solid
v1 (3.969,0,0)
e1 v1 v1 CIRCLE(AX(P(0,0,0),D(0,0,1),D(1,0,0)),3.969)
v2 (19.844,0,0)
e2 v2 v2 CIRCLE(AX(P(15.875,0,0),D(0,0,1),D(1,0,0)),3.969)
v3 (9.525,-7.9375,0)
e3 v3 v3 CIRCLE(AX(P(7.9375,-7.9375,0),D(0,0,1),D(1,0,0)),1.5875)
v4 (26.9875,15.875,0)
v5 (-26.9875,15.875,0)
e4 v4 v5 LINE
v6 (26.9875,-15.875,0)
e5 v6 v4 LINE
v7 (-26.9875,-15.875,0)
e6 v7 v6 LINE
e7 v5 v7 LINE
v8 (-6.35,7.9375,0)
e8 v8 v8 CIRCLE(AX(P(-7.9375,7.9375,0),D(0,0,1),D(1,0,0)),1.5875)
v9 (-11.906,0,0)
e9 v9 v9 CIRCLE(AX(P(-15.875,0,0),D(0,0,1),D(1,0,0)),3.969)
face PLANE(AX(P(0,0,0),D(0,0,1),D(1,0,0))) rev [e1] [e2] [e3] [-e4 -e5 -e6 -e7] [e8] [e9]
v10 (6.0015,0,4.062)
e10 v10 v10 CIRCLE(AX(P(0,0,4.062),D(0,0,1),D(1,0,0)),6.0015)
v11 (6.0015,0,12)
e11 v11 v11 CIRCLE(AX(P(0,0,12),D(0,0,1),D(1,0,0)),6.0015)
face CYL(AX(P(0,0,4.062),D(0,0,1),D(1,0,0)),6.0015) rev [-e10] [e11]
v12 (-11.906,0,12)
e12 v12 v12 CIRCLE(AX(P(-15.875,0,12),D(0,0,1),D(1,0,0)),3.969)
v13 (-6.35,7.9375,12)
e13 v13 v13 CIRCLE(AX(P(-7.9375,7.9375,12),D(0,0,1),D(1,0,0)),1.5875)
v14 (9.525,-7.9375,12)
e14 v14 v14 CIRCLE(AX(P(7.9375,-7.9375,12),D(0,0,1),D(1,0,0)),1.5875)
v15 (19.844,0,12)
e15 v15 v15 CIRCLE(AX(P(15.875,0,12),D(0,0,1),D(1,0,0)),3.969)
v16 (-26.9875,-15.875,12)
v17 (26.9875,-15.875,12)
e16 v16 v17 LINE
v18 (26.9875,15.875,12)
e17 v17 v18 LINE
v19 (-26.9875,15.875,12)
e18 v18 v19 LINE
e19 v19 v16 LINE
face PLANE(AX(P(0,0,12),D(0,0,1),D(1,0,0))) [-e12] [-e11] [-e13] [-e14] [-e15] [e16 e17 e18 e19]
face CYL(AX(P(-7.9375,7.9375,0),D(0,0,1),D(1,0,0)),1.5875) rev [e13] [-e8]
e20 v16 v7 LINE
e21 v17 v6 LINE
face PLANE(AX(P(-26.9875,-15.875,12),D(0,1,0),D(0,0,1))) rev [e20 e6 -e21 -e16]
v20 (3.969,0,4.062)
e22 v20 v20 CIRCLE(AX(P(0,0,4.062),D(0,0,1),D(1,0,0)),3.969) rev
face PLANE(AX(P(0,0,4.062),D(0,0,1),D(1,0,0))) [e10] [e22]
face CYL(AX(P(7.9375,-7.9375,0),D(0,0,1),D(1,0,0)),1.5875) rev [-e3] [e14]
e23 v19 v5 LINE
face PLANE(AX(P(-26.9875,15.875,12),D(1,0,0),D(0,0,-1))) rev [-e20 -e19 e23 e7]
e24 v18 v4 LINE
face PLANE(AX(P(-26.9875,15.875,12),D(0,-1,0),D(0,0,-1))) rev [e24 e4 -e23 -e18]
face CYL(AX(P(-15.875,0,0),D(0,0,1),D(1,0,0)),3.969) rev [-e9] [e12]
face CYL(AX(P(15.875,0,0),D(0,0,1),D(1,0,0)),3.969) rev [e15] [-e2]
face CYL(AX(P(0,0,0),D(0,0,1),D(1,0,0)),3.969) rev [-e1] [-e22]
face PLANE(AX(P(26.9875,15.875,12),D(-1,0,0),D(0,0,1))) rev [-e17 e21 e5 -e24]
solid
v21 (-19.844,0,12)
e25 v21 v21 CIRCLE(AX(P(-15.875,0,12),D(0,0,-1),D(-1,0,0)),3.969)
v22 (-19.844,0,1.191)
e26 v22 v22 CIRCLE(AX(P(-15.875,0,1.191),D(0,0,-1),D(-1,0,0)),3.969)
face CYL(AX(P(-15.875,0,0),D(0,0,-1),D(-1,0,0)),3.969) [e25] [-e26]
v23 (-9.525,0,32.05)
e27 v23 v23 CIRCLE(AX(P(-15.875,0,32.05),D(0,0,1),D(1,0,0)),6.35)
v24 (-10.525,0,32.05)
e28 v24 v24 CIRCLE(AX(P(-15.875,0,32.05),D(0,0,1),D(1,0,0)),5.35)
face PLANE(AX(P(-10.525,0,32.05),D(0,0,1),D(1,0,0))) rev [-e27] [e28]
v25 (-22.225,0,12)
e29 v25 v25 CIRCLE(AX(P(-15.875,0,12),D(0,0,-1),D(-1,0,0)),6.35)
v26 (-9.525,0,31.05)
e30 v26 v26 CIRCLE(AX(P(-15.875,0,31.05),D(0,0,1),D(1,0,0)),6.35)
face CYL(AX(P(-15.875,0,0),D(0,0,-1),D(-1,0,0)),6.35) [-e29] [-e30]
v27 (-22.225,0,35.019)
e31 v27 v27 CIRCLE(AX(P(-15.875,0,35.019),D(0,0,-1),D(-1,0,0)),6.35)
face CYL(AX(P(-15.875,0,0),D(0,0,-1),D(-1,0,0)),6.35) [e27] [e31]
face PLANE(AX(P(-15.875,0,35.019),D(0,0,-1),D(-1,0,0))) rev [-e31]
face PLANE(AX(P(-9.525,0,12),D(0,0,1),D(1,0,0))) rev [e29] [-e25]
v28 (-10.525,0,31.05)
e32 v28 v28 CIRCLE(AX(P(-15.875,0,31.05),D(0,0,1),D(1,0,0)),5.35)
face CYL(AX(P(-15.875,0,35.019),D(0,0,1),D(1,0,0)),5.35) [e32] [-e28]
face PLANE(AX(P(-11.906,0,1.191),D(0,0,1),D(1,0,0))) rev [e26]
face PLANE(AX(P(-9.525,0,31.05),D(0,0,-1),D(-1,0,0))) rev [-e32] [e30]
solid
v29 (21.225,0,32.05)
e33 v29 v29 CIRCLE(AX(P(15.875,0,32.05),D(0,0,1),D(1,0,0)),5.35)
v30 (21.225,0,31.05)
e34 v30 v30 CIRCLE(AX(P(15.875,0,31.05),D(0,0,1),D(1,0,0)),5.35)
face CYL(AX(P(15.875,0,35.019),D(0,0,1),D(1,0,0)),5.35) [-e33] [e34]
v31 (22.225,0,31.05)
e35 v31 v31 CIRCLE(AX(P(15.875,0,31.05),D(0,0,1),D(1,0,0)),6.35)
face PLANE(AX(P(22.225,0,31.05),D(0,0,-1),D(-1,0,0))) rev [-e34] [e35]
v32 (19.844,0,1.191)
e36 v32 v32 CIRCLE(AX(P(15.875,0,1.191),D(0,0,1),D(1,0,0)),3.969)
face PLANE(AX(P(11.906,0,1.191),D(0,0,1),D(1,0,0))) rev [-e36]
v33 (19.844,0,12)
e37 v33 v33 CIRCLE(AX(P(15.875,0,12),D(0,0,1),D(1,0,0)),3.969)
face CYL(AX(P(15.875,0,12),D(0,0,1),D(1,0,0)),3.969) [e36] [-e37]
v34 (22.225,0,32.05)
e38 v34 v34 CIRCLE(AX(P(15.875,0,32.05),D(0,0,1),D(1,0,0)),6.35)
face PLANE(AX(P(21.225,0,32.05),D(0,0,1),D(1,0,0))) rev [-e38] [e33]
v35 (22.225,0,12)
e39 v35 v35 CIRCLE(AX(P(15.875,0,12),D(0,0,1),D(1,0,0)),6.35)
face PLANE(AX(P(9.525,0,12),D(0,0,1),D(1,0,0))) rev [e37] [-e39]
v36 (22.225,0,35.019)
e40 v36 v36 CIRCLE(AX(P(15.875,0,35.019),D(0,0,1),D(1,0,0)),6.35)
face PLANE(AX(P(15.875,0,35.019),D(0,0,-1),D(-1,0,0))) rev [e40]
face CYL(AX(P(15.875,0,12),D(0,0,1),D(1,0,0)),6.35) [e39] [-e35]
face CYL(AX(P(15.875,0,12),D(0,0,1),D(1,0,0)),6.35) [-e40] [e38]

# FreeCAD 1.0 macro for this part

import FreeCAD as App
import Part
import Sketcher
Q = App.Units.Quantity

doc = App.newDocument("Part")
params = doc.addObject("Spreadsheet::Sheet", "Params")
for row, (alias, value) in enumerate([
    ("sketch1_height", "1.25 in"),
    ("sketch1_width", "2.125 in"),
    ("pad1_length", "12 mm"),
    ("pocket2_length", "7.938 mm"),
    ("sketch4_diameter", "0.125 in"),
    ("sketch6_width", "0.25 in"),
    ("revolution_angle", "360 deg"),
    ("groove_angle", "360 deg"),
    ("sketch8_width", "0.25 in"),
    ("revolution2_angle", "360 deg"),
    ("groove2_angle", "360 deg"),
], start=1):
    params.set(f"A{row}", alias)
    params.set(f"B{row}", "=" + value)
    params.setAlias(f"B{row}", alias)

body = doc.addObject("PartDesign::Body", "Body")

# Sketch on XY plane
sketch1 = doc.addObject("Sketcher::SketchObject", "Sketch")
body.addObject(sketch1)
sketch1.AttachmentSupport = (doc.XY_Plane, [""])
sketch1.MapMode = "FlatFace"
sketch1.addGeometry(Part.LineSegment(App.Vector(-27, 16, 0), App.Vector(-27, -16, 0)), False)
sketch1.addGeometry(Part.LineSegment(App.Vector(-27, -16, 0), App.Vector(27, -16, 0)), False)
sketch1.addGeometry(Part.LineSegment(App.Vector(27, -16, 0), App.Vector(27, 16, 0)), False)
sketch1.addGeometry(Part.LineSegment(App.Vector(27, 16, 0), App.Vector(-27, 16, 0)), False)
sketch1.addConstraint(Sketcher.Constraint("Coincident", 0, 2, 1, 1))
sketch1.addConstraint(Sketcher.Constraint("Coincident", 1, 2, 2, 1))
sketch1.addConstraint(Sketcher.Constraint("Coincident", 2, 2, 3, 1))
sketch1.addConstraint(Sketcher.Constraint("Coincident", 3, 2, 0, 1))
sketch1.addConstraint(Sketcher.Constraint("Vertical", 0))
sketch1.addConstraint(Sketcher.Constraint("Horizontal", 1))
sketch1.addConstraint(Sketcher.Constraint("Vertical", 2))
sketch1.addConstraint(Sketcher.Constraint("Horizontal", 3))
sketch1.addConstraint(Sketcher.Constraint("Symmetric", 0, 2, 2, 2, -1, 1))
sketch1.addConstraint(Sketcher.Constraint("DistanceY", 0, 2, 0, 1, Q("1.25 in")))
sketch1.addConstraint(Sketcher.Constraint("DistanceX", 1, 1, 1, 2, Q("2.125 in")))
sketch1.setExpression("Constraints[9]", "Params.sketch1_height")
sketch1.setExpression("Constraints[10]", "Params.sketch1_width")
pad1 = doc.addObject("PartDesign::Pad", "Pad")
body.addObject(pad1)
pad1.Profile = sketch1
pad1.setExpression("Length", "Params.pad1_length")

# Sketch on XY plane
sketch2 = doc.addObject("Sketcher::SketchObject", "Sketch001")
body.addObject(sketch2)
sketch2.AttachmentSupport = (doc.XY_Plane, [""])
sketch2.MapMode = "FlatFace"
sketch2.AttachmentOffset = App.Placement(App.Vector(0, 0, 12), App.Rotation())
sketch2.addGeometry(Part.Circle(App.Vector(0, 0, 0), App.Vector(0, 0, 1), 4), False)
sketch2.addConstraint(Sketcher.Constraint("Coincident", 0, 3, -1, 1))
sketch2.addConstraint(Sketcher.Constraint("Diameter", 0, Q("7.938 mm")))
pocket1 = doc.addObject("PartDesign::Pocket", "Pocket")
body.addObject(pocket1)
pocket1.Profile = sketch2
pocket1.Type = "ThroughAll"

# Sketch on XY plane
sketch3 = doc.addObject("Sketcher::SketchObject", "Sketch002")
body.addObject(sketch3)
sketch3.AttachmentSupport = (doc.XY_Plane, [""])
sketch3.MapMode = "FlatFace"
sketch3.AttachmentOffset = App.Placement(App.Vector(0, 0, 12), App.Rotation())
sketch3.addGeometry(Part.Circle(App.Vector(0, 0, 0), App.Vector(0, 0, 1), 6), False)
sketch3.addConstraint(Sketcher.Constraint("Coincident", 0, 3, -1, 1))
sketch3.addConstraint(Sketcher.Constraint("Diameter", 0, Q("12.003 mm")))
pocket2 = doc.addObject("PartDesign::Pocket", "Pocket001")
body.addObject(pocket2)
pocket2.Profile = sketch3
pocket2.setExpression("Length", "Params.pocket2_length")

# Sketch on XY plane
sketch4 = doc.addObject("Sketcher::SketchObject", "Sketch003")
body.addObject(sketch4)
sketch4.AttachmentSupport = (doc.XY_Plane, [""])
sketch4.MapMode = "FlatFace"
sketch4.AttachmentOffset = App.Placement(App.Vector(0, 0, 12), App.Rotation())
sketch4.addGeometry(Part.Circle(App.Vector(7.9, -7.9, 0), App.Vector(0, 0, 1), 1.6), False)
sketch4.addGeometry(Part.Circle(App.Vector(-7.9, 7.9, 0), App.Vector(0, 0, 1), 1.6), False)
sketch4.addConstraint(Sketcher.Constraint("Equal", 0, 1))
sketch4.addConstraint(Sketcher.Constraint("Symmetric", 0, 3, 1, 3, -1, 1))
sketch4.addConstraint(Sketcher.Constraint("Diameter", 0, Q("0.125 in")))
sketch4.addConstraint(Sketcher.Constraint("DistanceX", -1, 1, 0, 3, Q("0.3125 in")))
sketch4.addConstraint(Sketcher.Constraint("DistanceY", 0, 3, -1, 1, Q("0.3125 in")))
sketch4.setExpression("Constraints[2]", "Params.sketch4_diameter")
pocket3 = doc.addObject("PartDesign::Pocket", "Pocket002")
body.addObject(pocket3)
pocket3.Profile = sketch4
pocket3.Type = "ThroughAll"

# Sketch on XY plane
sketch5 = doc.addObject("Sketcher::SketchObject", "Sketch004")
body.addObject(sketch5)
sketch5.AttachmentSupport = (doc.XY_Plane, [""])
sketch5.MapMode = "FlatFace"
sketch5.AttachmentOffset = App.Placement(App.Vector(0, 0, 12), App.Rotation())
sketch5.addGeometry(Part.Circle(App.Vector(-15.9, 0, 0), App.Vector(0, 0, 1), 4), False)
sketch5.addGeometry(Part.Circle(App.Vector(15.9, 0, 0), App.Vector(0, 0, 1), 4), False)
sketch5.addConstraint(Sketcher.Constraint("Equal", 0, 1))
sketch5.addConstraint(Sketcher.Constraint("Symmetric", 0, 3, 1, 3, -1, 1))
sketch5.addConstraint(Sketcher.Constraint("PointOnObject", 0, 3, -1))
sketch5.addConstraint(Sketcher.Constraint("Diameter", 0, Q("7.938 mm")))
sketch5.addConstraint(Sketcher.Constraint("DistanceX", 0, 3, 1, 3, Q("1.25 in")))
pocket4 = doc.addObject("PartDesign::Pocket", "Pocket003")
body.addObject(pocket4)
pocket4.Profile = sketch5
pocket4.Type = "ThroughAll"
body2 = doc.addObject("PartDesign::Body", "Body001")

# Sketch on XZ plane
sketch6 = doc.addObject("Sketcher::SketchObject", "Sketch005")
body2.addObject(sketch6)
sketch6.AttachmentSupport = (doc.getObject("XZ_Plane001"), [""])
sketch6.MapMode = "FlatFace"
sketch6.addGeometry(Part.LineSegment(App.Vector(-15.9, 1.2, 0), App.Vector(-15.9, 35, 0)), False)
sketch6.addGeometry(Part.LineSegment(App.Vector(-15.9, 35, 0), App.Vector(-9.5, 35, 0)), False)
sketch6.addGeometry(Part.LineSegment(App.Vector(-9.5, 35, 0), App.Vector(-9.5, 12, 0)), False)
sketch6.addGeometry(Part.LineSegment(App.Vector(-9.5, 12, 0), App.Vector(-11.9, 12, 0)), False)
sketch6.addGeometry(Part.LineSegment(App.Vector(-11.9, 12, 0), App.Vector(-11.9, 1.2, 0)), False)
sketch6.addGeometry(Part.LineSegment(App.Vector(-11.9, 1.2, 0), App.Vector(-15.9, 1.2, 0)), False)
sketch6.addGeometry(Part.LineSegment(App.Vector(-15.9, 1.2, 0), App.Vector(-15.9, 35, 0)), True)  # axis
sketch6.addConstraint(Sketcher.Constraint("Coincident", 0, 2, 1, 1))
sketch6.addConstraint(Sketcher.Constraint("Coincident", 1, 2, 2, 1))
sketch6.addConstraint(Sketcher.Constraint("Coincident", 2, 2, 3, 1))
sketch6.addConstraint(Sketcher.Constraint("Coincident", 3, 2, 4, 1))
sketch6.addConstraint(Sketcher.Constraint("Coincident", 4, 2, 5, 1))
sketch6.addConstraint(Sketcher.Constraint("Coincident", 5, 2, 0, 1))
sketch6.addConstraint(Sketcher.Constraint("Vertical", 0))
sketch6.addConstraint(Sketcher.Constraint("Horizontal", 1))
sketch6.addConstraint(Sketcher.Constraint("Vertical", 2))
sketch6.addConstraint(Sketcher.Constraint("Horizontal", 3))
sketch6.addConstraint(Sketcher.Constraint("Vertical", 4))
sketch6.addConstraint(Sketcher.Constraint("Horizontal", 5))
sketch6.addConstraint(Sketcher.Constraint("Vertical", 6))
sketch6.addConstraint(Sketcher.Constraint("Coincident", 6, 1, 5, 2))
sketch6.addConstraint(Sketcher.Constraint("Horizontal", 1, 2, 6, 2))
sketch6.addConstraint(Sketcher.Constraint("DistanceX", 1, 1, 1, 2, Q("0.25 in")))
sketch6.addConstraint(Sketcher.Constraint("DistanceX", 0, 2, -1, 1, Q("0.625 in")))
sketch6.addConstraint(Sketcher.Constraint("DistanceX", 3, 2, 3, 1, Q("2.381 mm")))
sketch6.addConstraint(Sketcher.Constraint("DistanceY", 0, 1, 0, 2, Q("33.828 mm")))
sketch6.addConstraint(Sketcher.Constraint("DistanceY", 2, 2, 2, 1, Q("23.019 mm")))
sketch6.addConstraint(Sketcher.Constraint("DistanceY", -1, 1, 0, 2, Q("35.019 mm")))
sketch6.setExpression("Constraints[15]", "Params.sketch6_width")
revolution = doc.addObject("PartDesign::Revolution", "Revolution")
body2.addObject(revolution)
revolution.Profile = sketch6
revolution.ReferenceAxis = (sketch6, ["Axis0"])
revolution.setExpression("Angle", "Params.revolution_angle")

# Sketch on XZ plane
sketch7 = doc.addObject("Sketcher::SketchObject", "Sketch006")
body2.addObject(sketch7)
sketch7.AttachmentSupport = (doc.getObject("XZ_Plane001"), [""])
sketch7.MapMode = "FlatFace"
sketch7.addGeometry(Part.LineSegment(App.Vector(-10.5, 31.1, 0), App.Vector(-10.5, 32, 0)), False)
sketch7.addGeometry(Part.LineSegment(App.Vector(-10.5, 32, 0), App.Vector(-9.5, 32, 0)), False)
sketch7.addGeometry(Part.LineSegment(App.Vector(-9.5, 32, 0), App.Vector(-9.5, 31.1, 0)), False)
sketch7.addGeometry(Part.LineSegment(App.Vector(-9.5, 31.1, 0), App.Vector(-10.5, 31.1, 0)), False)
sketch7.addGeometry(Part.LineSegment(App.Vector(-15.9, 32, 0), App.Vector(-15.9, 31.1, 0)), True)  # axis
sketch7.addConstraint(Sketcher.Constraint("Coincident", 0, 2, 1, 1))
sketch7.addConstraint(Sketcher.Constraint("Coincident", 1, 2, 2, 1))
sketch7.addConstraint(Sketcher.Constraint("Coincident", 2, 2, 3, 1))
sketch7.addConstraint(Sketcher.Constraint("Coincident", 3, 2, 0, 1))
sketch7.addConstraint(Sketcher.Constraint("Vertical", 0))
sketch7.addConstraint(Sketcher.Constraint("Horizontal", 1))
sketch7.addConstraint(Sketcher.Constraint("Vertical", 2))
sketch7.addConstraint(Sketcher.Constraint("Horizontal", 3))
sketch7.addConstraint(Sketcher.Constraint("Vertical", 4))
sketch7.addConstraint(Sketcher.Constraint("Horizontal", 1, 2, 4, 1))
sketch7.addConstraint(Sketcher.Constraint("Horizontal", 3, 2, 4, 2))
sketch7.addConstraint(Sketcher.Constraint("Equal", 3, 0))
sketch7.addConstraint(Sketcher.Constraint("DistanceX", 4, 1, 1, 2, Q("0.25 in")))
sketch7.addConstraint(Sketcher.Constraint("DistanceX", 1, 2, -1, 1, Q("0.375 in")))
sketch7.addConstraint(Sketcher.Constraint("DistanceX", 1, 1, 1, 2, Q("1 mm")))
sketch7.addConstraint(Sketcher.Constraint("DistanceY", -1, 1, 0, 2, Q("32.05 mm")))
groove = doc.addObject("PartDesign::Groove", "Groove")
body2.addObject(groove)
groove.Profile = sketch7
groove.ReferenceAxis = (sketch7, ["Axis0"])
groove.setExpression("Angle", "Params.groove_angle")
body3 = doc.addObject("PartDesign::Body", "Body002")

# Sketch on XZ plane
sketch8 = doc.addObject("Sketcher::SketchObject", "Sketch007")
body3.addObject(sketch8)
sketch8.AttachmentSupport = (doc.getObject("XZ_Plane002"), [""])
sketch8.MapMode = "FlatFace"
sketch8.addGeometry(Part.LineSegment(App.Vector(15.9, 35, 0), App.Vector(15.9, 1.2, 0)), False)
sketch8.addGeometry(Part.LineSegment(App.Vector(15.9, 1.2, 0), App.Vector(11.9, 1.2, 0)), False)
sketch8.addGeometry(Part.LineSegment(App.Vector(11.9, 1.2, 0), App.Vector(11.9, 12, 0)), False)
sketch8.addGeometry(Part.LineSegment(App.Vector(11.9, 12, 0), App.Vector(9.5, 12, 0)), False)
sketch8.addGeometry(Part.LineSegment(App.Vector(9.5, 12, 0), App.Vector(9.5, 35, 0)), False)
sketch8.addGeometry(Part.LineSegment(App.Vector(9.5, 35, 0), App.Vector(15.9, 35, 0)), False)
sketch8.addGeometry(Part.LineSegment(App.Vector(15.9, 35, 0), App.Vector(15.9, 1.2, 0)), True)  # axis
sketch8.addConstraint(Sketcher.Constraint("Coincident", 0, 2, 1, 1))
sketch8.addConstraint(Sketcher.Constraint("Coincident", 1, 2, 2, 1))
sketch8.addConstraint(Sketcher.Constraint("Coincident", 2, 2, 3, 1))
sketch8.addConstraint(Sketcher.Constraint("Coincident", 3, 2, 4, 1))
sketch8.addConstraint(Sketcher.Constraint("Coincident", 4, 2, 5, 1))
sketch8.addConstraint(Sketcher.Constraint("Coincident", 5, 2, 0, 1))
sketch8.addConstraint(Sketcher.Constraint("Vertical", 0))
sketch8.addConstraint(Sketcher.Constraint("Horizontal", 1))
sketch8.addConstraint(Sketcher.Constraint("Vertical", 2))
sketch8.addConstraint(Sketcher.Constraint("Horizontal", 3))
sketch8.addConstraint(Sketcher.Constraint("Vertical", 4))
sketch8.addConstraint(Sketcher.Constraint("Horizontal", 5))
sketch8.addConstraint(Sketcher.Constraint("Vertical", 6))
sketch8.addConstraint(Sketcher.Constraint("Coincident", 6, 1, 5, 2))
sketch8.addConstraint(Sketcher.Constraint("Horizontal", 1, 2, 6, 2))
sketch8.addConstraint(Sketcher.Constraint("DistanceX", 5, 1, 5, 2, Q("0.25 in")))
sketch8.addConstraint(Sketcher.Constraint("DistanceX", -1, 1, 0, 2, Q("0.625 in")))
sketch8.addConstraint(Sketcher.Constraint("DistanceX", 1, 2, 1, 1, Q("3.969 mm")))
sketch8.addConstraint(Sketcher.Constraint("DistanceY", 0, 2, 0, 1, Q("33.828 mm")))
sketch8.addConstraint(Sketcher.Constraint("DistanceY", 2, 1, 2, 2, Q("10.809 mm")))
sketch8.addConstraint(Sketcher.Constraint("DistanceY", -1, 1, 0, 2, Q("1.191 mm")))
sketch8.setExpression("Constraints[15]", "Params.sketch8_width")
revolution2 = doc.addObject("PartDesign::Revolution", "Revolution001")
body3.addObject(revolution2)
revolution2.Profile = sketch8
revolution2.ReferenceAxis = (sketch8, ["Axis0"])
revolution2.setExpression("Angle", "Params.revolution2_angle")

# Sketch on XZ plane
sketch9 = doc.addObject("Sketcher::SketchObject", "Sketch008")
body3.addObject(sketch9)
sketch9.AttachmentSupport = (doc.getObject("XZ_Plane002"), [""])
sketch9.MapMode = "FlatFace"
sketch9.addGeometry(Part.LineSegment(App.Vector(21.2, 31.1, 0), App.Vector(21.2, 32, 0)), False)
sketch9.addGeometry(Part.LineSegment(App.Vector(21.2, 32, 0), App.Vector(22.2, 32, 0)), False)
sketch9.addGeometry(Part.LineSegment(App.Vector(22.2, 32, 0), App.Vector(22.2, 31.1, 0)), False)
sketch9.addGeometry(Part.LineSegment(App.Vector(22.2, 31.1, 0), App.Vector(21.2, 31.1, 0)), False)
sketch9.addGeometry(Part.LineSegment(App.Vector(15.9, 32, 0), App.Vector(15.9, 31.1, 0)), True)  # axis
sketch9.addConstraint(Sketcher.Constraint("Coincident", 0, 2, 1, 1))
sketch9.addConstraint(Sketcher.Constraint("Coincident", 1, 2, 2, 1))
sketch9.addConstraint(Sketcher.Constraint("Coincident", 2, 2, 3, 1))
sketch9.addConstraint(Sketcher.Constraint("Coincident", 3, 2, 0, 1))
sketch9.addConstraint(Sketcher.Constraint("Vertical", 0))
sketch9.addConstraint(Sketcher.Constraint("Horizontal", 1))
sketch9.addConstraint(Sketcher.Constraint("Vertical", 2))
sketch9.addConstraint(Sketcher.Constraint("Horizontal", 3))
sketch9.addConstraint(Sketcher.Constraint("Vertical", 4))
sketch9.addConstraint(Sketcher.Constraint("Horizontal", 1, 2, 4, 1))
sketch9.addConstraint(Sketcher.Constraint("Horizontal", 3, 2, 4, 2))
sketch9.addConstraint(Sketcher.Constraint("Equal", 3, 0))
sketch9.addConstraint(Sketcher.Constraint("DistanceX", 4, 1, 1, 2, Q("0.25 in")))
sketch9.addConstraint(Sketcher.Constraint("DistanceX", -1, 1, 1, 2, Q("0.875 in")))
sketch9.addConstraint(Sketcher.Constraint("DistanceX", 1, 1, 1, 2, Q("1 mm")))
sketch9.addConstraint(Sketcher.Constraint("DistanceY", -1, 1, 0, 2, Q("32.05 mm")))
groove2 = doc.addObject("PartDesign::Groove", "Groove001")
body3.addObject(groove2)
groove2.Profile = sketch9
groove2.ReferenceAxis = (sketch9, ["Axis0"])
groove2.setExpression("Angle", "Params.groove2_angle")

doc.recompute()
